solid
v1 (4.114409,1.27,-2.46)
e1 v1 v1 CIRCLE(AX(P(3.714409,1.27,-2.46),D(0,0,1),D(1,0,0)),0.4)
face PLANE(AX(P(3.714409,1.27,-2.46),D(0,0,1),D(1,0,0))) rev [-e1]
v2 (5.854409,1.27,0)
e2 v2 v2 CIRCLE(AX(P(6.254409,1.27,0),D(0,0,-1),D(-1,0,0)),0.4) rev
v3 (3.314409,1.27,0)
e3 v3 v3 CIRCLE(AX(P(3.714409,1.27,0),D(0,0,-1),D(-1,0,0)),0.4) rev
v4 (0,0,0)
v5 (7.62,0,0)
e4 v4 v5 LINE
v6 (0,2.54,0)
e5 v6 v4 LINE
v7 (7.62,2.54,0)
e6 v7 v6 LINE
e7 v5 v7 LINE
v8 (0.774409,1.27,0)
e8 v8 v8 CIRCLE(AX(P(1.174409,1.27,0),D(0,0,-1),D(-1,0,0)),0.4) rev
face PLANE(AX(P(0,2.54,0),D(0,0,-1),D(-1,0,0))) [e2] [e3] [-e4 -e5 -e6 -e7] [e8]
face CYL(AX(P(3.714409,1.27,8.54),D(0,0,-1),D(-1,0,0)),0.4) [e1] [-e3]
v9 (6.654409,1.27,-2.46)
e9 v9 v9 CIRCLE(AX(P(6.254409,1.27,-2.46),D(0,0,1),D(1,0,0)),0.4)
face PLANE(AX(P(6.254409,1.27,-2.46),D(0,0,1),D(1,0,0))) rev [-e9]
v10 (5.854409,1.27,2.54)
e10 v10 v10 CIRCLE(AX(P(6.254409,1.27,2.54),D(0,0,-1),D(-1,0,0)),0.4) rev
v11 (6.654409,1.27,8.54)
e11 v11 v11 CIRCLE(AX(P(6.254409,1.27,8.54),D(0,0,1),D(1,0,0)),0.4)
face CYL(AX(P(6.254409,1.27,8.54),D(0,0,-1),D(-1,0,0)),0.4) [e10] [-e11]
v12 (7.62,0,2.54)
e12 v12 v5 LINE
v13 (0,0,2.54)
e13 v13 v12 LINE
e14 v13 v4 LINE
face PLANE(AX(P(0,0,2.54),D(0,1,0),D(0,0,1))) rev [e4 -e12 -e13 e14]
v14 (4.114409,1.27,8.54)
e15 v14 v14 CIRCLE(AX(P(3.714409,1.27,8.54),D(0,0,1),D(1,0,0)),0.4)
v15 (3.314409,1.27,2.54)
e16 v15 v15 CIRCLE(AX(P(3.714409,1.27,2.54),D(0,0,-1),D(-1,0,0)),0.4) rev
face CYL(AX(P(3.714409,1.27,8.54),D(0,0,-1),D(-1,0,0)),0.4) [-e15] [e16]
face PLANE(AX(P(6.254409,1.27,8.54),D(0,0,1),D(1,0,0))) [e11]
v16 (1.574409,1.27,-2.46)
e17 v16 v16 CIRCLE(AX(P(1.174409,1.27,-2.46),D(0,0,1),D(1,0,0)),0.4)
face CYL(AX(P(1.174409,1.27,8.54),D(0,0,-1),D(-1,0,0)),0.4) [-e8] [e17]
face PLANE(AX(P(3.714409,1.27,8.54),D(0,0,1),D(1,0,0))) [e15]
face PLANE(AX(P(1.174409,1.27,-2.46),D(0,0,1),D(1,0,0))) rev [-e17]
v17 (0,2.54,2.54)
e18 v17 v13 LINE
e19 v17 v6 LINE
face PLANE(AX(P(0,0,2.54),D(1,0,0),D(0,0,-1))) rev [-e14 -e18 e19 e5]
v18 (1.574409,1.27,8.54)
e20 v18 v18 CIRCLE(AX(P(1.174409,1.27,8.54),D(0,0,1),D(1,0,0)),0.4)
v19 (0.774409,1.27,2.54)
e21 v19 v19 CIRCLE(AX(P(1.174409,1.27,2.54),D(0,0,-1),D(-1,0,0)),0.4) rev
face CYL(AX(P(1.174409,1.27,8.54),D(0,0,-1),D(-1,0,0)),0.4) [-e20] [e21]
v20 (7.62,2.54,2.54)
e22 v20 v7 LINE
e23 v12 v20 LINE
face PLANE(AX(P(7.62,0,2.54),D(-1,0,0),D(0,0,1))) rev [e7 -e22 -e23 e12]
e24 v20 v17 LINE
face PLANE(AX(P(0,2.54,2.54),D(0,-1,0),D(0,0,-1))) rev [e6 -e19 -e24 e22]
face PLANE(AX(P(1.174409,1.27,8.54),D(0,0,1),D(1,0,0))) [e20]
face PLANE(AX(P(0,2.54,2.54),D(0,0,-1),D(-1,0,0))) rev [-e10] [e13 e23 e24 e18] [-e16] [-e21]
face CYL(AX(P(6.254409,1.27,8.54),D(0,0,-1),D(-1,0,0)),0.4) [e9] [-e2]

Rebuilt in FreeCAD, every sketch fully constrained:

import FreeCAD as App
import Part
import Sketcher
from FreeCAD import Vector

doc = App.newDocument("Part")
body = doc.addObject("PartDesign::Body", "Body")

# Sketch on XY plane
sketch1 = body.newObject("Sketcher::SketchObject", "Sketch")
sketch1.AttachmentSupport = (doc.getObject("XY_Plane"), [""])
sketch1.MapMode = "FlatFace"
sketch1.addGeometry(Part.LineSegment(Vector(0, 2.5, 0), Vector(0, 0, 0)), False)
sketch1.addGeometry(Part.LineSegment(Vector(0, 0, 0), Vector(7.6, 0, 0)), False)
sketch1.addGeometry(Part.LineSegment(Vector(7.6, 0, 0), Vector(7.6, 2.5, 0)), False)
sketch1.addGeometry(Part.LineSegment(Vector(7.6, 2.5, 0), Vector(0, 2.5, 0)), False)
sketch1.addConstraint(Sketcher.Constraint("Coincident", 0, 2, 1, 1))
sketch1.addConstraint(Sketcher.Constraint("Coincident", 1, 2, 2, 1))
sketch1.addConstraint(Sketcher.Constraint("Coincident", 2, 2, 3, 1))
sketch1.addConstraint(Sketcher.Constraint("Coincident", 3, 2, 0, 1))
sketch1.addConstraint(Sketcher.Constraint("Vertical", 0))
sketch1.addConstraint(Sketcher.Constraint("Horizontal", 1))
sketch1.addConstraint(Sketcher.Constraint("Vertical", 2))
sketch1.addConstraint(Sketcher.Constraint("Horizontal", 3))
sketch1.addConstraint(Sketcher.Constraint("Coincident", 0, 2, -1, 1))
sketch1.addConstraint(Sketcher.Constraint("DistanceX", 1, 1, 1, 2, 7.62))
sketch1.addConstraint(Sketcher.Constraint("DistanceY", 0, 2, 0, 1, 2.54))
pad1 = body.newObject("PartDesign::Pad", "Pad")
pad1.Profile = sketch1
pad1.Length = 2.54

# Sketch on XY plane
sketch2 = body.newObject("Sketcher::SketchObject", "Sketch001")
sketch2.AttachmentSupport = (doc.getObject("XY_Plane"), [""])
sketch2.MapMode = "FlatFace"
sketch2.AttachmentOffset = App.Placement(Vector(0, 0, 2.54), App.Rotation())
sketch2.addGeometry(Part.Circle(Vector(1.17, 1.27, 0), Vector(0, 0, 1), 0.4), False)
sketch2.addGeometry(Part.Circle(Vector(3.71, 1.27, 0), Vector(0, 0, 1), 0.4), False)
sketch2.addGeometry(Part.Circle(Vector(6.25, 1.27, 0), Vector(0, 0, 1), 0.4), False)
sketch2.addConstraint(Sketcher.Constraint("Equal", 0, 1))
sketch2.addConstraint(Sketcher.Constraint("Equal", 1, 2))
sketch2.addConstraint(Sketcher.Constraint("Horizontal", 0, 3, 1, 3))
sketch2.addConstraint(Sketcher.Constraint("Horizontal", 1, 3, 2, 3))
sketch2.addConstraint(Sketcher.Constraint("Diameter", 0, 0.8))
sketch2.addConstraint(Sketcher.Constraint("DistanceY", -1, 1, 0, 3, 1.27))
sketch2.addConstraint(Sketcher.Constraint("DistanceX", 0, 3, 1, 3, 2.54))
sketch2.addConstraint(Sketcher.Constraint("DistanceX", 1, 3, 2, 3, 2.54))
sketch2.addConstraint(Sketcher.Constraint("DistanceX", -1, 1, 0, 3, 1.174409))
pad2 = body.newObject("PartDesign::Pad", "Pad001")
pad2.Profile = sketch2
pad2.Type = "TwoLengths"
pad2.Length = 6
pad2.Length2 = 5

doc.recompute()
